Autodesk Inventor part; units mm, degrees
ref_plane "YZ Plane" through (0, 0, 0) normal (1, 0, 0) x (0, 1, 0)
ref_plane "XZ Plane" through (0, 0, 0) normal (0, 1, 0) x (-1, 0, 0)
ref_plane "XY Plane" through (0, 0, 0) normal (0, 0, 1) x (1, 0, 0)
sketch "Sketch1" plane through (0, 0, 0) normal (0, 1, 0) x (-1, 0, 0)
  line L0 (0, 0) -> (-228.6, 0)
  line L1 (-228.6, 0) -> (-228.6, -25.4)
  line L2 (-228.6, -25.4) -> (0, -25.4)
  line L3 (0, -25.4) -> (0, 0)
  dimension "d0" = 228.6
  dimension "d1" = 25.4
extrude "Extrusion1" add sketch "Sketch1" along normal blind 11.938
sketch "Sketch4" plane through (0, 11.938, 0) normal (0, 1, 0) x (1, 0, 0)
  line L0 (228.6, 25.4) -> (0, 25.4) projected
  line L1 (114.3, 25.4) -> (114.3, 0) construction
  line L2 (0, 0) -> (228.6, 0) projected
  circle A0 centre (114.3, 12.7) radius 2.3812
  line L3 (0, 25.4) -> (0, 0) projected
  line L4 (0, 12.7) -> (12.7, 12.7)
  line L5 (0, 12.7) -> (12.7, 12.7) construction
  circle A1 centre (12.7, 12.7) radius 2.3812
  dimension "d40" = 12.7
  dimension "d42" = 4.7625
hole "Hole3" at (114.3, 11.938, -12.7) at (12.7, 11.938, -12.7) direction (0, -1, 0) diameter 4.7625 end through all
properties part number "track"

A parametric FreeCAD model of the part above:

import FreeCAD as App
import Part
import Sketcher

V = App.Vector
Q = App.Units.Quantity

doc = App.newDocument("Part")
body = doc.addObject("PartDesign::Body", "Body")

# Sketch on XZ plane
sketch1 = body.newObject("Sketcher::SketchObject", "Sketch")
sketch1.AttachmentSupport = (doc.getObject("XZ_Plane"), [""])
sketch1.MapMode = "FlatFace"
sketch1.addGeometry(Part.LineSegment(V(0, -25, 0), V(0, 0, 0)), False)
sketch1.addGeometry(Part.LineSegment(V(0, 0, 0), V(229, 0, 0)), False)
sketch1.addGeometry(Part.LineSegment(V(229, 0, 0), V(229, -25, 0)), False)
sketch1.addGeometry(Part.LineSegment(V(229, -25, 0), V(0, -25, 0)), False)
sketch1.addConstraint(Sketcher.Constraint("Coincident", 0, 2, 1, 1))
sketch1.addConstraint(Sketcher.Constraint("Coincident", 1, 2, 2, 1))
sketch1.addConstraint(Sketcher.Constraint("Coincident", 2, 2, 3, 1))
sketch1.addConstraint(Sketcher.Constraint("Coincident", 3, 2, 0, 1))
sketch1.addConstraint(Sketcher.Constraint("Vertical", 0))
sketch1.addConstraint(Sketcher.Constraint("Horizontal", 1))
sketch1.addConstraint(Sketcher.Constraint("Vertical", 2))
sketch1.addConstraint(Sketcher.Constraint("Horizontal", 3))
sketch1.addConstraint(Sketcher.Constraint("Coincident", 0, 2, -1, 1))
sketch1.addConstraint(Sketcher.Constraint("DistanceX", 1, 1, 1, 2, Q("9 in")))
sketch1.addConstraint(Sketcher.Constraint("DistanceY", 0, 1, 0, 2, Q("1 in")))
pad1 = body.newObject("PartDesign::Pad", "Pad")
pad1.Profile = sketch1
pad1.Length = Q("0.47 in")
pad1.Reversed = True

# Sketch on XZ plane
sketch2 = body.newObject("Sketcher::SketchObject", "Sketch001")
sketch2.AttachmentSupport = (doc.getObject("XZ_Plane"), [""])
sketch2.MapMode = "FlatFace"
sketch2.AttachmentOffset = App.Placement(V(0, 0, -0.47 * 25.4), App.Rotation())
sketch2.addGeometry(Part.Circle(V(114.3, -12.7, 0), V(0, 0, 1), 2.4), False)
sketch2.addGeometry(Part.Circle(V(12.7, -12.7, 0), V(0, 0, 1), 2.4), False)
sketch2.addConstraint(Sketcher.Constraint("Equal", 0, 1))
sketch2.addConstraint(Sketcher.Constraint("Horizontal", 0, 3, 1, 3))
sketch2.addConstraint(Sketcher.Constraint("Diameter", 0, Q("0.1875 in")))
sketch2.addConstraint(Sketcher.Constraint("DistanceX", 1, 3, 0, 3, Q("4 in")))
sketch2.addConstraint(Sketcher.Constraint("DistanceX", -1, 1, 0, 3, Q("4.5 in")))
sketch2.addConstraint(Sketcher.Constraint("DistanceY", 0, 3, -1, 1, Q("0.5 in")))
doc.recompute()
hole = body.newObject("PartDesign::Hole", "Hole")
hole.Profile = sketch2
hole.ThreadType = "None"
hole.Diameter = Q("0.1875 in")
hole.DepthType = "ThroughAll"
hole.Reversed = True

doc.recompute()
